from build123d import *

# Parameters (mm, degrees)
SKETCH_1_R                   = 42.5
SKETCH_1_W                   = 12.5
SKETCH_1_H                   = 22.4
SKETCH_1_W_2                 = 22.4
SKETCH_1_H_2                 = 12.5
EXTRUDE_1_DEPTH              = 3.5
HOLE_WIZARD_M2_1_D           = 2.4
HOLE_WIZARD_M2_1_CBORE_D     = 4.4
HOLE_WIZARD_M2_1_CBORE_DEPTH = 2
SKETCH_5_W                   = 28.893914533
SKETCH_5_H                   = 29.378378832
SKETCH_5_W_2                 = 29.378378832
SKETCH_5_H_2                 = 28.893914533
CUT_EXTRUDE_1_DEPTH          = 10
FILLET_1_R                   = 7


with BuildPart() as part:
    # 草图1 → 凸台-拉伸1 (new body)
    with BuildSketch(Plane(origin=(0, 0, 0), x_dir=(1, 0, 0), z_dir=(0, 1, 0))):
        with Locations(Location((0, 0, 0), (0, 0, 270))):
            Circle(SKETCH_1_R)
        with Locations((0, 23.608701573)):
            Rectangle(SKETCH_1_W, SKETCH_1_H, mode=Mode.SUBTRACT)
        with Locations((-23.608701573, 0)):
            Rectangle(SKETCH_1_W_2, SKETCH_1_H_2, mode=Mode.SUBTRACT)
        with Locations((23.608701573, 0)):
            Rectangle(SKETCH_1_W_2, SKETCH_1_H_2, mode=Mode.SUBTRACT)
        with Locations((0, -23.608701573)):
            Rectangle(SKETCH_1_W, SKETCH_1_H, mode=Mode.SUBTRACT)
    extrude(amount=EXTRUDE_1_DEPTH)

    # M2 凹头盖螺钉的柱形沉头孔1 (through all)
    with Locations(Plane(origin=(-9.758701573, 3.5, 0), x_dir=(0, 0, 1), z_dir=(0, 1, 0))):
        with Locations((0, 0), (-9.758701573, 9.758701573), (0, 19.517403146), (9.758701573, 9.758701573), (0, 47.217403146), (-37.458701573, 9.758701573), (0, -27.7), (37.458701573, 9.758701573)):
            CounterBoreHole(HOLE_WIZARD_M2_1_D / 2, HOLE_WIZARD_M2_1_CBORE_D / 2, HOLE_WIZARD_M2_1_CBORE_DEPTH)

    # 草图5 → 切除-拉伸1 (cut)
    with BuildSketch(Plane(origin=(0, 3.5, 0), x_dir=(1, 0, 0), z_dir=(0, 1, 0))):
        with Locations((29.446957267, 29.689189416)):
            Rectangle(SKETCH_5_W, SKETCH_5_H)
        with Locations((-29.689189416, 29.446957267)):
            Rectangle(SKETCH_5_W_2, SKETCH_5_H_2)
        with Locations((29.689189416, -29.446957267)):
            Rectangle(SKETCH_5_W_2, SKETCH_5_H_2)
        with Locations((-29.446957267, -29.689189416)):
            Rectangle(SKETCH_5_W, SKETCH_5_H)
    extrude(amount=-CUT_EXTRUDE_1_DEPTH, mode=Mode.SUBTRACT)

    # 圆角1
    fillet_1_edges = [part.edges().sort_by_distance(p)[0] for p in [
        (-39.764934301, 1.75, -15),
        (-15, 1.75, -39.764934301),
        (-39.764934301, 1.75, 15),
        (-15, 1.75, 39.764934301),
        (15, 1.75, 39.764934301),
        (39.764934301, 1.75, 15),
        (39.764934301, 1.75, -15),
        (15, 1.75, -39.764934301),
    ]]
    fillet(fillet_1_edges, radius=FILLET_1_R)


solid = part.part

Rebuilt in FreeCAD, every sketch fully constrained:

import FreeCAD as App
import Part
import Sketcher
from FreeCAD import Vector


def edges_at(feature, points):
    """Names of the edges that pass closest to the given points."""
    edges = feature.Shape.Edges
    near = lambda p: min(range(len(edges)), key=lambda i: edges[i].distToShape(Part.Vertex(*p))[0])
    return sorted({f"Edge{near(p) + 1}" for p in points})

doc = App.newDocument("Part")
params = doc.addObject("Spreadsheet::Sheet", "Params")
for row, (alias, value) in enumerate([
    ("sketch1_diameter", "85 mm"),
    ("sketch1_width", "12.5 mm"),
    ("sketch1_width2", "22.4 mm"),
    ("pad1_length", "3.5 mm"),
    ("sketch2_diameter", "2.4 mm"),
    ("hole_diameter", "2.4 mm"),
    ("hole_cbore_diameter", "4.4 mm"),
    ("hole_cbore_depth", "2 mm"),
    ("pocket1_length", "10 mm"),
    ("fillet_radius", "7 mm"),
], start=1):
    params.set(f"A{row}", alias)
    params.set(f"B{row}", "=" + value)
    params.setAlias(f"B{row}", alias)

body = doc.addObject("PartDesign::Body", "Body")

sketch1 = body.newObject("Sketcher::SketchObject", "Sketch")
sketch1.AttachmentSupport = (doc.getObject("XZ_Plane"), [""])
sketch1.MapMode = "FlatFace"
sketch1.addGeometry(Part.Circle(Vector(0, 0, 0), Vector(0, 0, 1), 42), False)
sketch1.addGeometry(Part.LineSegment(Vector(6, -12, 0), Vector(-6, -12, 0)), False)
sketch1.addGeometry(Part.LineSegment(Vector(-6, -12, 0), Vector(-6, -35, 0)), False)
sketch1.addGeometry(Part.LineSegment(Vector(-6, -35, 0), Vector(6, -35, 0)), False)
sketch1.addGeometry(Part.LineSegment(Vector(6, -35, 0), Vector(6, -12, 0)), False)
sketch1.addGeometry(Part.LineSegment(Vector(-12, 6, 0), Vector(-35, 6, 0)), False)
sketch1.addGeometry(Part.LineSegment(Vector(-35, 6, 0), Vector(-35, -6, 0)), False)
sketch1.addGeometry(Part.LineSegment(Vector(-35, -6, 0), Vector(-12, -6, 0)), False)
sketch1.addGeometry(Part.LineSegment(Vector(-12, -6, 0), Vector(-12, 6, 0)), False)
sketch1.addGeometry(Part.LineSegment(Vector(35, 6, 0), Vector(12, 6, 0)), False)
sketch1.addGeometry(Part.LineSegment(Vector(12, 6, 0), Vector(12, -6, 0)), False)
sketch1.addGeometry(Part.LineSegment(Vector(12, -6, 0), Vector(35, -6, 0)), False)
sketch1.addGeometry(Part.LineSegment(Vector(35, -6, 0), Vector(35, 6, 0)), False)
sketch1.addGeometry(Part.LineSegment(Vector(6, 35, 0), Vector(-6, 35, 0)), False)
sketch1.addGeometry(Part.LineSegment(Vector(-6, 35, 0), Vector(-6, 12, 0)), False)
sketch1.addGeometry(Part.LineSegment(Vector(-6, 12, 0), Vector(6, 12, 0)), False)
sketch1.addGeometry(Part.LineSegment(Vector(6, 12, 0), Vector(6, 35, 0)), False)
sketch1.addConstraint(Sketcher.Constraint("Coincident", 1, 2, 2, 1))
sketch1.addConstraint(Sketcher.Constraint("Coincident", 2, 2, 3, 1))
sketch1.addConstraint(Sketcher.Constraint("Coincident", 3, 2, 4, 1))
sketch1.addConstraint(Sketcher.Constraint("Coincident", 4, 2, 1, 1))
sketch1.addConstraint(Sketcher.Constraint("Coincident", 5, 2, 6, 1))
sketch1.addConstraint(Sketcher.Constraint("Coincident", 6, 2, 7, 1))
sketch1.addConstraint(Sketcher.Constraint("Coincident", 7, 2, 8, 1))
sketch1.addConstraint(Sketcher.Constraint("Coincident", 8, 2, 5, 1))
sketch1.addConstraint(Sketcher.Constraint("Coincident", 9, 2, 10, 1))
sketch1.addConstraint(Sketcher.Constraint("Coincident", 10, 2, 11, 1))
sketch1.addConstraint(Sketcher.Constraint("Coincident", 11, 2, 12, 1))
sketch1.addConstraint(Sketcher.Constraint("Coincident", 12, 2, 9, 1))
sketch1.addConstraint(Sketcher.Constraint("Coincident", 13, 2, 14, 1))
sketch1.addConstraint(Sketcher.Constraint("Coincident", 14, 2, 15, 1))
sketch1.addConstraint(Sketcher.Constraint("Coincident", 15, 2, 16, 1))
sketch1.addConstraint(Sketcher.Constraint("Coincident", 16, 2, 13, 1))
sketch1.addConstraint(Sketcher.Constraint("Horizontal", 1))
sketch1.addConstraint(Sketcher.Constraint("Vertical", 2))
sketch1.addConstraint(Sketcher.Constraint("Horizontal", 3))
sketch1.addConstraint(Sketcher.Constraint("Vertical", 4))
sketch1.addConstraint(Sketcher.Constraint("Horizontal", 5))
sketch1.addConstraint(Sketcher.Constraint("Vertical", 6))
sketch1.addConstraint(Sketcher.Constraint("Horizontal", 7))
sketch1.addConstraint(Sketcher.Constraint("Vertical", 8))
sketch1.addConstraint(Sketcher.Constraint("Horizontal", 9))
sketch1.addConstraint(Sketcher.Constraint("Vertical", 10))
sketch1.addConstraint(Sketcher.Constraint("Horizontal", 11))
sketch1.addConstraint(Sketcher.Constraint("Vertical", 12))
sketch1.addConstraint(Sketcher.Constraint("Horizontal", 13))
sketch1.addConstraint(Sketcher.Constraint("Vertical", 14))
sketch1.addConstraint(Sketcher.Constraint("Horizontal", 15))
sketch1.addConstraint(Sketcher.Constraint("Vertical", 16))
sketch1.addConstraint(Sketcher.Constraint("Coincident", 0, 3, -1, 1))
sketch1.addConstraint(Sketcher.Constraint("Symmetric", 7, 2, 9, 2, -1, 1))
sketch1.addConstraint(Sketcher.Constraint("Symmetric", 5, 2, 11, 2, -1, 1))
sketch1.addConstraint(Sketcher.Constraint("Symmetric", 3, 2, 13, 2, -1, 1))
sketch1.addConstraint(Sketcher.Constraint("Symmetric", 1, 2, 15, 2, -1, 1))
sketch1.addConstraint(Sketcher.Constraint("Horizontal", 8, 2, 9, 2))
sketch1.addConstraint(Sketcher.Constraint("Vertical", 2, 2, 13, 2))
sketch1.addConstraint(Sketcher.Constraint("Equal", 11, 2))
sketch1.addConstraint(Sketcher.Constraint("Equal", 15, 6))
sketch1.addConstraint(Sketcher.Constraint("Diameter", 0, 85.0))
sketch1.addConstraint(Sketcher.Constraint("DistanceX", 1, 2, 1, 1, 12.5))
sketch1.addConstraint(Sketcher.Constraint("DistanceX", 5, 2, 5, 1, 22.4))
sketch1.addConstraint(Sketcher.Constraint("DistanceY", 1, 2, -1, 1, 12.408702))
sketch1.addConstraint(Sketcher.Constraint("DistanceX", 5, 2, -1, 1, 34.808702))
sketch1.setExpression("Constraints[41]", "Params.sketch1_diameter")
sketch1.setExpression("Constraints[42]", "Params.sketch1_width")
sketch1.setExpression("Constraints[43]", "Params.sketch1_width2")
pad1 = body.newObject("PartDesign::Pad", "Pad")
pad1.Profile = sketch1
pad1.setExpression("Length", "Params.pad1_length")
pad1.Reversed = True

sketch2 = body.newObject("Sketcher::SketchObject", "Sketch001")
sketch2.AttachmentSupport = (doc.getObject("XZ_Plane"), [""])
sketch2.MapMode = "FlatFace"
sketch2.AttachmentOffset = App.Placement(Vector(0, 0, -3.5), App.Rotation())
sketch2.addGeometry(Part.Circle(Vector(-9.8, 0, 0), Vector(0, 0, 1), 1.2), False)
sketch2.addGeometry(Part.Circle(Vector(0, -9.8, 0), Vector(0, 0, 1), 1.2), False)
sketch2.addGeometry(Part.Circle(Vector(9.8, 0, 0), Vector(0, 0, 1), 1.2), False)
sketch2.addGeometry(Part.Circle(Vector(0, 9.8, 0), Vector(0, 0, 1), 1.2), False)
sketch2.addGeometry(Part.Circle(Vector(37.5, 0, 0), Vector(0, 0, 1), 1.2), False)
sketch2.addGeometry(Part.Circle(Vector(0, -37.5, 0), Vector(0, 0, 1), 1.2), False)
sketch2.addGeometry(Part.Circle(Vector(-37.5, 0, 0), Vector(0, 0, 1), 1.2), False)
sketch2.addGeometry(Part.Circle(Vector(0, 37.5, 0), Vector(0, 0, 1), 1.2), False)
sketch2.addConstraint(Sketcher.Constraint("Equal", 0, 1))
sketch2.addConstraint(Sketcher.Constraint("Equal", 1, 2))
sketch2.addConstraint(Sketcher.Constraint("Equal", 2, 3))
sketch2.addConstraint(Sketcher.Constraint("Equal", 3, 4))
sketch2.addConstraint(Sketcher.Constraint("Equal", 4, 5))
sketch2.addConstraint(Sketcher.Constraint("Equal", 5, 6))
sketch2.addConstraint(Sketcher.Constraint("Equal", 6, 7))
sketch2.addConstraint(Sketcher.Constraint("Symmetric", 0, 3, 2, 3, -1, 1))
sketch2.addConstraint(Sketcher.Constraint("Symmetric", 1, 3, 3, 3, -1, 1))
sketch2.addConstraint(Sketcher.Constraint("Symmetric", 4, 3, 6, 3, -1, 1))
sketch2.addConstraint(Sketcher.Constraint("Symmetric", 5, 3, 7, 3, -1, 1))
sketch2.addConstraint(Sketcher.Constraint("PointOnObject", 0, 3, -1))
sketch2.addConstraint(Sketcher.Constraint("PointOnObject", 1, 3, -2))
sketch2.addConstraint(Sketcher.Constraint("PointOnObject", 4, 3, -1))
sketch2.addConstraint(Sketcher.Constraint("PointOnObject", 5, 3, -2))
sketch2.addConstraint(Sketcher.Constraint("Diameter", 0, 2.4))
sketch2.addConstraint(Sketcher.Constraint("DistanceX", 2, 3, 4, 3, 27.7))
sketch2.addConstraint(Sketcher.Constraint("DistanceY", 5, 3, 1, 3, 27.7))
sketch2.addConstraint(Sketcher.Constraint("DistanceX", 0, 3, -1, 1, 9.758702))
sketch2.addConstraint(Sketcher.Constraint("DistanceY", 1, 3, -1, 1, 9.758702))
sketch2.setExpression("Constraints[15]", "Params.sketch2_diameter")
doc.recompute()
hole = body.newObject("PartDesign::Hole", "Hole")
hole.Profile = sketch2
hole.ThreadType = "None"
hole.setExpression("Diameter", "Params.hole_diameter")
hole.DepthType = "ThroughAll"
hole.HoleCutType = "Counterbore"
hole.setExpression("HoleCutDiameter", "Params.hole_cbore_diameter")
hole.setExpression("HoleCutDepth", "Params.hole_cbore_depth")
hole.Reversed = True

sketch3 = body.newObject("Sketcher::SketchObject", "Sketch002")
sketch3.AttachmentSupport = (doc.getObject("XZ_Plane"), [""])
sketch3.MapMode = "FlatFace"
sketch3.AttachmentOffset = App.Placement(Vector(0, 0, -3.5), App.Rotation())
sketch3.addGeometry(Part.LineSegment(Vector(15, -44, 0), Vector(15, -15, 0)), False)
sketch3.addGeometry(Part.LineSegment(Vector(15, -15, 0), Vector(44, -15, 0)), False)
sketch3.addGeometry(Part.LineSegment(Vector(44, -15, 0), Vector(44, -44, 0)), False)
sketch3.addGeometry(Part.LineSegment(Vector(44, -44, 0), Vector(15, -44, 0)), False)
sketch3.addGeometry(Part.LineSegment(Vector(-44, -44, 0), Vector(-44, -15, 0)), False)
sketch3.addGeometry(Part.LineSegment(Vector(-44, -15, 0), Vector(-15, -15, 0)), False)
sketch3.addGeometry(Part.LineSegment(Vector(-15, -15, 0), Vector(-15, -44, 0)), False)
sketch3.addGeometry(Part.LineSegment(Vector(-15, -44, 0), Vector(-44, -44, 0)), False)
sketch3.addGeometry(Part.LineSegment(Vector(15, 15, 0), Vector(15, 44, 0)), False)
sketch3.addGeometry(Part.LineSegment(Vector(15, 44, 0), Vector(44, 44, 0)), False)
sketch3.addGeometry(Part.LineSegment(Vector(44, 44, 0), Vector(44, 15, 0)), False)
sketch3.addGeometry(Part.LineSegment(Vector(44, 15, 0), Vector(15, 15, 0)), False)
sketch3.addGeometry(Part.LineSegment(Vector(-44, 15, 0), Vector(-44, 44, 0)), False)
sketch3.addGeometry(Part.LineSegment(Vector(-44, 44, 0), Vector(-15, 44, 0)), False)
sketch3.addGeometry(Part.LineSegment(Vector(-15, 44, 0), Vector(-15, 15, 0)), False)
sketch3.addGeometry(Part.LineSegment(Vector(-15, 15, 0), Vector(-44, 15, 0)), False)
sketch3.addConstraint(Sketcher.Constraint("Coincident", 0, 2, 1, 1))
sketch3.addConstraint(Sketcher.Constraint("Coincident", 1, 2, 2, 1))
sketch3.addConstraint(Sketcher.Constraint("Coincident", 2, 2, 3, 1))
sketch3.addConstraint(Sketcher.Constraint("Coincident", 3, 2, 0, 1))
sketch3.addConstraint(Sketcher.Constraint("Coincident", 4, 2, 5, 1))
sketch3.addConstraint(Sketcher.Constraint("Coincident", 5, 2, 6, 1))
sketch3.addConstraint(Sketcher.Constraint("Coincident", 6, 2, 7, 1))
sketch3.addConstraint(Sketcher.Constraint("Coincident", 7, 2, 4, 1))
sketch3.addConstraint(Sketcher.Constraint("Coincident", 8, 2, 9, 1))
sketch3.addConstraint(Sketcher.Constraint("Coincident", 9, 2, 10, 1))
sketch3.addConstraint(Sketcher.Constraint("Coincident", 10, 2, 11, 1))
sketch3.addConstraint(Sketcher.Constraint("Coincident", 11, 2, 8, 1))
sketch3.addConstraint(Sketcher.Constraint("Coincident", 12, 2, 13, 1))
sketch3.addConstraint(Sketcher.Constraint("Coincident", 13, 2, 14, 1))
sketch3.addConstraint(Sketcher.Constraint("Coincident", 14, 2, 15, 1))
sketch3.addConstraint(Sketcher.Constraint("Coincident", 15, 2, 12, 1))
sketch3.addConstraint(Sketcher.Constraint("Vertical", 0))
sketch3.addConstraint(Sketcher.Constraint("Horizontal", 1))
sketch3.addConstraint(Sketcher.Constraint("Vertical", 2))
sketch3.addConstraint(Sketcher.Constraint("Horizontal", 3))
sketch3.addConstraint(Sketcher.Constraint("Vertical", 4))
sketch3.addConstraint(Sketcher.Constraint("Horizontal", 5))
sketch3.addConstraint(Sketcher.Constraint("Vertical", 6))
sketch3.addConstraint(Sketcher.Constraint("Horizontal", 7))
sketch3.addConstraint(Sketcher.Constraint("Vertical", 8))
sketch3.addConstraint(Sketcher.Constraint("Horizontal", 9))
sketch3.addConstraint(Sketcher.Constraint("Vertical", 10))
sketch3.addConstraint(Sketcher.Constraint("Horizontal", 11))
sketch3.addConstraint(Sketcher.Constraint("Vertical", 12))
sketch3.addConstraint(Sketcher.Constraint("Horizontal", 13))
sketch3.addConstraint(Sketcher.Constraint("Vertical", 14))
sketch3.addConstraint(Sketcher.Constraint("Horizontal", 15))
sketch3.addConstraint(Sketcher.Constraint("Symmetric", 6, 2, 8, 2, -1, 1))
sketch3.addConstraint(Sketcher.Constraint("Symmetric", 4, 2, 10, 2, -1, 1))
sketch3.addConstraint(Sketcher.Constraint("Symmetric", 2, 2, 12, 2, -1, 1))
sketch3.addConstraint(Sketcher.Constraint("Symmetric", 0, 2, 14, 2, -1, 1))
sketch3.addConstraint(Sketcher.Constraint("Symmetric", 0, 2, 5, 2, -2))
sketch3.addConstraint(Sketcher.Constraint("Equal", 11, 0))
sketch3.addConstraint(Sketcher.Constraint("Equal", 15, 4))
sketch3.addConstraint(Sketcher.Constraint("DistanceX", -1, 1, 0, 2, 15.0))
sketch3.addConstraint(Sketcher.Constraint("DistanceY", 0, 2, -1, 1, 15.0))
sketch3.addConstraint(Sketcher.Constraint("DistanceX", 5, 1, 5, 2, 29.378379))
sketch3.addConstraint(Sketcher.Constraint("DistanceX", 1, 1, 1, 2, 28.893915))
pocket1 = body.newObject("PartDesign::Pocket", "Pocket")
pocket1.Profile = sketch3
pocket1.setExpression("Length", "Params.pocket1_length")
pocket1.Reversed = True
doc.recompute()

fillet = body.newObject("PartDesign::Fillet", "Fillet")
fillet.Base = (pocket1, edges_at(pocket1, [
    (-39.765, 1.75, -15),
    (-15, 1.75, -39.765),
    (-39.765, 1.75, 15),
    (-15, 1.75, 39.765),
    (15, 1.75, 39.765),
    (39.765, 1.75, 15),
    (39.765, 1.75, -15),
    (15, 1.75, -39.765),
]))
fillet.setExpression("Radius", "Params.fillet_radius")

doc.recompute()
